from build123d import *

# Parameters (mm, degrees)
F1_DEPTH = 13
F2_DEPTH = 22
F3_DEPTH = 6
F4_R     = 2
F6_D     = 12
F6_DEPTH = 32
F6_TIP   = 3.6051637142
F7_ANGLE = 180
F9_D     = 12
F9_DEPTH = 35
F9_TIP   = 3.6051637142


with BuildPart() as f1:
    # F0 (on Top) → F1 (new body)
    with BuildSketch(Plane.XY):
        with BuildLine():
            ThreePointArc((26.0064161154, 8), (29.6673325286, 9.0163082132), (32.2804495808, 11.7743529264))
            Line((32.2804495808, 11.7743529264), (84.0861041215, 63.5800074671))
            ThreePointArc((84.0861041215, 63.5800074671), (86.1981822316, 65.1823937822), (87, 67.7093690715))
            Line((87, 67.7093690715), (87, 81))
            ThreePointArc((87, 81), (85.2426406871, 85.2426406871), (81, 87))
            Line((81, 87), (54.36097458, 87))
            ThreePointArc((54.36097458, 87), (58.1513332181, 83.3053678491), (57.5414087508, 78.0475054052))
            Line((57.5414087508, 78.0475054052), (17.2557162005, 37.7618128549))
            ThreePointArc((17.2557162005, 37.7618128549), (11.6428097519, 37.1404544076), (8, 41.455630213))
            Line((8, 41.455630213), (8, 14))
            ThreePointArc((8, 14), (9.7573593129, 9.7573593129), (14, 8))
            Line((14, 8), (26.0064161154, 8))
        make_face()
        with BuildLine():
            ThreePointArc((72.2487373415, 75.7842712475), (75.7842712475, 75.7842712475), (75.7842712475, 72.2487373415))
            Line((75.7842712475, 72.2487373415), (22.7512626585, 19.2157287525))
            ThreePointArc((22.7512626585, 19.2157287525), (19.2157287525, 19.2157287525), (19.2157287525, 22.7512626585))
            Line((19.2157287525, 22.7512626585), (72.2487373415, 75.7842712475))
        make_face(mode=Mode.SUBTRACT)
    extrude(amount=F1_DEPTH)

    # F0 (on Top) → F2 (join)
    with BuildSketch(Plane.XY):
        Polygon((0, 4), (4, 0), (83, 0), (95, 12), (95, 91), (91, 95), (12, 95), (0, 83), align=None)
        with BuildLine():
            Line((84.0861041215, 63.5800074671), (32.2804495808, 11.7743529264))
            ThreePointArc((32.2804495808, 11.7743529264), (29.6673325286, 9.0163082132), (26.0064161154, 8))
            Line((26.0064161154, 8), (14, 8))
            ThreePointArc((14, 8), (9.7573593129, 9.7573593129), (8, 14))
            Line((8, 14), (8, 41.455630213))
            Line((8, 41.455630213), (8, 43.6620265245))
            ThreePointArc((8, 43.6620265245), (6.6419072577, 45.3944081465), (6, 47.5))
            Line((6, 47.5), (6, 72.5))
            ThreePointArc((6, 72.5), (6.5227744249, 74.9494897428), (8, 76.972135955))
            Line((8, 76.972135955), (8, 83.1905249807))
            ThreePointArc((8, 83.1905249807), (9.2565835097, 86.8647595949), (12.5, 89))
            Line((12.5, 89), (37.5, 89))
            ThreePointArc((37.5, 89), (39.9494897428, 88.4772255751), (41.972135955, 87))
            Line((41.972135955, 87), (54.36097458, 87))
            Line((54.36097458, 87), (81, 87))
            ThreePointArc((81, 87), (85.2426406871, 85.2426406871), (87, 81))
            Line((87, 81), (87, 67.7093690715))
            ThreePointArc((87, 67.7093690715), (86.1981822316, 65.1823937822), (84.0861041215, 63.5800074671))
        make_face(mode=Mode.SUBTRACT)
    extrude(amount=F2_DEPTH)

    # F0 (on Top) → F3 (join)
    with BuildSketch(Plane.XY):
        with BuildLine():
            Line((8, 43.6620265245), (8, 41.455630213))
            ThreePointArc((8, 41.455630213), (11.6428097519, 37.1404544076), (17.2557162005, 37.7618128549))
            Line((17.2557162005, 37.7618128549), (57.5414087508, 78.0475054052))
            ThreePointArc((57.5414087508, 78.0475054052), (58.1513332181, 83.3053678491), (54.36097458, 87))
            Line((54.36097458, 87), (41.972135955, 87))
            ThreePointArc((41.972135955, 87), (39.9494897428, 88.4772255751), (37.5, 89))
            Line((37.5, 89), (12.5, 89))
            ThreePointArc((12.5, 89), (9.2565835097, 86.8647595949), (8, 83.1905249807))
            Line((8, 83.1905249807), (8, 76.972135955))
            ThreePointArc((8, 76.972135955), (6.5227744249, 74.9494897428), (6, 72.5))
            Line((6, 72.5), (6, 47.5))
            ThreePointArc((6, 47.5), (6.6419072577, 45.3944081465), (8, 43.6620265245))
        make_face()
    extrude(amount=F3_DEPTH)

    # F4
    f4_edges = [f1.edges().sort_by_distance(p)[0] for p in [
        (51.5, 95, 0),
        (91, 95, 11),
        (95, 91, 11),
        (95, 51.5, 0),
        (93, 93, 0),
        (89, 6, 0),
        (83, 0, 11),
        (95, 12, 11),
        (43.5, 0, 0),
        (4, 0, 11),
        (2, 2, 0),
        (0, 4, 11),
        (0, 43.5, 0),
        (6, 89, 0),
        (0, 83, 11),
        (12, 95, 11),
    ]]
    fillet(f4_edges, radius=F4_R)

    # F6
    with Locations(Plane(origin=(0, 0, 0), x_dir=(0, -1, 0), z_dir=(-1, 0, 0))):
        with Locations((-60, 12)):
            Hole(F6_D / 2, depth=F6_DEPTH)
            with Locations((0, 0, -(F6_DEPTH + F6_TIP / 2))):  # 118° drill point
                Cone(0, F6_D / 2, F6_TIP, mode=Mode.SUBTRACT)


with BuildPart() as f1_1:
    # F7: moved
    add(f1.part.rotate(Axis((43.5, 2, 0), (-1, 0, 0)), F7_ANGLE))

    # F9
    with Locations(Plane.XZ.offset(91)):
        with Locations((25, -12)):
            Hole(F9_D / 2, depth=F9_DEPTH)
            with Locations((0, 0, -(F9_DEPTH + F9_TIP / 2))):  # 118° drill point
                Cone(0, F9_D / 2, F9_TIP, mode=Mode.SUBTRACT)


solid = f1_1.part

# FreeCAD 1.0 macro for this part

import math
import FreeCAD as App
import Part
import Sketcher
Q = App.Units.Quantity


def edges_at(feature, points):
    """Names of the edges that pass closest to the given points."""
    edges = feature.Shape.Edges
    near = lambda p: min(range(len(edges)), key=lambda i: edges[i].distToShape(Part.Vertex(*p))[0])
    return sorted({f"Edge{near(p) + 1}" for p in points})


def add_polygon(sketch, points):
    """Adds a closed chain of lines whose ends are joined by coincident constraints."""
    first, n = sketch.GeometryCount, len(points)
    for a, b in zip(points, points[1:] + points[:1]):
        sketch.addGeometry(Part.LineSegment(App.Vector(*a, 0), App.Vector(*b, 0)), False)
    for i in range(n):
        sketch.addConstraint(Sketcher.Constraint("Coincident", first + i, 2, first + (i + 1) % n, 1))

doc = App.newDocument("Part")
body = doc.addObject("PartDesign::Body", "Body")

# Sketch on XY plane
sketch1 = doc.addObject("Sketcher::SketchObject", "Sketch")
body.addObject(sketch1)
sketch1.AttachmentSupport = (doc.XY_Plane, [""])
sketch1.MapMode = "FlatFace"
sketch1.addGeometry([
    Part.ArcOfCircle(Part.Circle(App.Vector(26.006416, 15.101778, 0), App.Vector(0, 0, 1), 7.101778), math.radians(-90), math.radians(-27.939185)),  # 0
    Part.LineSegment(App.Vector(32.28045, 11.774353, 0), App.Vector(84.086104, 63.580007, 0)),  # 1
    Part.ArcOfCircle(Part.Circle(App.Vector(82.617136, 67.709369, 0), App.Vector(0, 0, 1), 4.382864), math.radians(-70.417633), math.radians(0)),  # 2
    Part.LineSegment(App.Vector(87, 67.709369, 0), App.Vector(87, 81, 0)),  # 3
    Part.ArcOfCircle(Part.Circle(App.Vector(81, 81, 0), App.Vector(0, 0, 1), 6), math.radians(0), math.radians(90)),  # 4
    Part.LineSegment(App.Vector(81, 87, 0), App.Vector(54.360975, 87, 0)),  # 5
    Part.ArcOfCircle(Part.Circle(App.Vector(52.49774, 81.296891, 0), App.Vector(0, 0, 1), 5.999759), math.radians(-32.791669), math.radians(71.90752)),  # 6
    Part.LineSegment(App.Vector(57.541409, 78.047505, 0), App.Vector(17.255716, 37.761813, 0)),  # 7
    Part.ArcOfCircle(Part.Circle(App.Vector(13.866757, 42.713071, 0), App.Vector(0, 0, 1), 6), math.radians(-167.902642), math.radians(-55.609758)),  # 8
    Part.LineSegment(App.Vector(8, 41.45563, 0), App.Vector(8, 14, 0)),  # 9
    Part.ArcOfCircle(Part.Circle(App.Vector(14, 14, 0), App.Vector(0, 0, 1), 6), math.radians(180), math.radians(270)),  # 10
    Part.LineSegment(App.Vector(14, 8, 0), App.Vector(26.006416, 8, 0)),  # 11
    Part.LineSegment(App.Vector(19.215729, 22.751263, 0), App.Vector(72.248737, 75.784271, 0)),  # 12
    Part.ArcOfCircle(Part.Circle(App.Vector(74.016504, 74.016504, 0), App.Vector(0, 0, 1), 2.5), math.radians(-45), math.radians(135)),  # 13
    Part.LineSegment(App.Vector(75.784271, 72.248737, 0), App.Vector(22.751263, 19.215729, 0)),  # 14
    Part.ArcOfCircle(Part.Circle(App.Vector(20.983496, 20.983496, 0), App.Vector(0, 0, 1), 2.5), math.radians(135), math.radians(315)),  # 15
], False)
sketch1.addConstraint([
    Sketcher.Constraint("Coincident", 0, 2, 1, 1),
    Sketcher.Constraint("Coincident", 1, 2, 2, 1),
    Sketcher.Constraint("Tangent", 2, 2, 3, 1),
    Sketcher.Constraint("Tangent", 3, 2, 4, 1),
    Sketcher.Constraint("Tangent", 4, 2, 5, 1),
    Sketcher.Constraint("Coincident", 5, 2, 6, 2),
    Sketcher.Constraint("Coincident", 6, 1, 7, 1),
    Sketcher.Constraint("Coincident", 7, 2, 8, 2),
    Sketcher.Constraint("Coincident", 8, 1, 9, 1),
    Sketcher.Constraint("Tangent", 9, 2, 10, 1),
    Sketcher.Constraint("Tangent", 10, 2, 11, 1),
    Sketcher.Constraint("Tangent", 11, 2, 0, 1),
    Sketcher.Constraint("Tangent", 12, 2, 13, 2),
    Sketcher.Constraint("Tangent", 13, 1, 14, 1),
    Sketcher.Constraint("Tangent", 14, 2, 15, 2),
    Sketcher.Constraint("Tangent", 15, 1, 12, 1),
    Sketcher.Constraint("Vertical", 3),
    Sketcher.Constraint("Horizontal", 5),
    Sketcher.Constraint("Vertical", 9),
    Sketcher.Constraint("Horizontal", 11),
    Sketcher.Constraint("Equal", 4, 8),
    Sketcher.Constraint("Equal", 8, 10),
    Sketcher.Constraint("Equal", 13, 15),
    Sketcher.Constraint("Parallel", 1, 7),
    Sketcher.Constraint("Parallel", 7, 12),
    Sketcher.Constraint("Radius", 4, 6.0),
    Sketcher.Constraint("Radius", 13, 2.5),
    Sketcher.Constraint("Angle", 1, Q("45 deg")),
    Sketcher.Constraint("Distance", 12, 75.0),
    Sketcher.Constraint("DistanceX", -1, 1, 4, 3, 81.0),
    Sketcher.Constraint("DistanceY", -1, 1, 4, 3, 81.0),
    Sketcher.Constraint("DistanceX", -1, 1, 10, 3, 14.0),
    Sketcher.Constraint("DistanceY", -1, 1, 10, 3, 14.0),
    Sketcher.Constraint("Radius", 0, 7.101778),
    Sketcher.Constraint("Radius", 6, 5.999759),
    Sketcher.Constraint("Radius", 2, 4.382864),
    Sketcher.Constraint("DistanceY", 13, 3, 6, 1, 4.031001),
    Sketcher.Constraint("DistanceY", 3, 1, 3, 2, 13.290631),
    Sketcher.Constraint("DistanceY", 9, 2, 9, 1, 27.45563),
    Sketcher.Constraint("DistanceX", 13, 3, 1, 2, 10.0696),
    Sketcher.Constraint("DistanceX", 7, 2, 0, 3, 8.7507),
    Sketcher.Constraint("DistanceX", 12, 2, 2, 3, 10.368399),
    Sketcher.Constraint("Distance", 1, 73.264259),
    Sketcher.Constraint("DistanceX", 5, 2, 5, 1, 26.639025),
    Sketcher.Constraint("DistanceX", -1, 1, 6, 3, 52.49774),
    Sketcher.Constraint("DistanceY", -1, 1, 8, 3, 42.713071),
])
pad1 = doc.addObject("PartDesign::Pad", "Pad")
body.addObject(pad1)
pad1.Profile = sketch1
pad1.Length = 13

# Sketch on XY plane
sketch2 = doc.addObject("Sketcher::SketchObject", "Sketch001")
body.addObject(sketch2)
sketch2.AttachmentSupport = (doc.XY_Plane, [""])
sketch2.MapMode = "FlatFace"
add_polygon(sketch2, [(0, 4), (4, 0), (83, 0), (95, 12), (95, 91), (91, 95), (12, 95), (0, 83)])  # lines 0-7
sketch2.addGeometry(Part.ArcOfCircle(Part.Circle(App.Vector(82.617136, 67.709369, 0), App.Vector(0, 0, 1), 4.382864), math.radians(-70.417633), math.radians(0)), False)  # 8
sketch2.addGeometry(Part.LineSegment(App.Vector(84.086104, 63.580007, 0), App.Vector(32.28045, 11.774353, 0)), False)  # 9
sketch2.addGeometry(Part.ArcOfCircle(Part.Circle(App.Vector(26.006416, 15.101778, 0), App.Vector(0, 0, 1), 7.101778), math.radians(-90), math.radians(-27.939185)), False)  # 10
sketch2.addGeometry(Part.LineSegment(App.Vector(26.006416, 8, 0), App.Vector(14, 8, 0)), False)  # 11
sketch2.addGeometry(Part.ArcOfCircle(Part.Circle(App.Vector(14, 14, 0), App.Vector(0, 0, 1), 6), math.radians(180), math.radians(270)), False)  # 12
sketch2.addGeometry(Part.LineSegment(App.Vector(8, 14, 0), App.Vector(8, 43.662027, 0)), False)  # 13
sketch2.addGeometry(Part.ArcOfCircle(Part.Circle(App.Vector(11.962792, 48.167166, 0), App.Vector(0, 0, 1), 6), math.radians(-173.615835), math.radians(-131.335373)), False)  # 14
sketch2.addGeometry(Part.LineSegment(App.Vector(6, 47.5, 0), App.Vector(6, 72.5, 0)), False)  # 15
sketch2.addGeometry(Part.ArcOfCircle(Part.Circle(App.Vector(12, 72.5, 0), App.Vector(0, 0, 1), 6), math.radians(131.810315), math.radians(180)), False)  # 16
sketch2.addGeometry(Part.LineSegment(App.Vector(8, 76.972136, 0), App.Vector(8, 83.190525, 0)), False)  # 17
sketch2.addGeometry(Part.ArcOfCircle(Part.Circle(App.Vector(14, 83.190525, 0), App.Vector(0, 0, 1), 6), math.radians(104.477512), math.radians(180)), False)  # 18
sketch2.addGeometry(Part.LineSegment(App.Vector(12.5, 89, 0), App.Vector(37.5, 89, 0)), False)  # 19
sketch2.addGeometry(Part.ArcOfCircle(Part.Circle(App.Vector(37.5, 83, 0), App.Vector(0, 0, 1), 6), math.radians(41.810315), math.radians(90)), False)  # 20
sketch2.addGeometry(Part.LineSegment(App.Vector(41.972136, 87, 0), App.Vector(81, 87, 0)), False)  # 21
sketch2.addGeometry(Part.ArcOfCircle(Part.Circle(App.Vector(81, 81, 0), App.Vector(0, 0, 1), 6), math.radians(0), math.radians(90)), False)  # 22
sketch2.addGeometry(Part.LineSegment(App.Vector(87, 81, 0), App.Vector(87, 67.709369, 0)), False)  # 23
sketch2.addConstraint([
    Sketcher.Constraint("Coincident", 8, 1, 9, 1),
    Sketcher.Constraint("Coincident", 9, 2, 10, 2),
    Sketcher.Constraint("Tangent", 10, 1, 11, 1),
    Sketcher.Constraint("Tangent", 11, 2, 12, 2),
    Sketcher.Constraint("Tangent", 12, 1, 13, 1),
    Sketcher.Constraint("Coincident", 13, 2, 14, 2),
    Sketcher.Constraint("Coincident", 14, 1, 15, 1),
    Sketcher.Constraint("Tangent", 15, 2, 16, 2),
    Sketcher.Constraint("Coincident", 16, 1, 17, 1),
    Sketcher.Constraint("Tangent", 17, 2, 18, 2),
    Sketcher.Constraint("Coincident", 18, 1, 19, 1),
    Sketcher.Constraint("Tangent", 19, 2, 20, 2),
    Sketcher.Constraint("Coincident", 20, 1, 21, 1),
    Sketcher.Constraint("Tangent", 21, 2, 22, 2),
    Sketcher.Constraint("Tangent", 22, 1, 23, 1),
    Sketcher.Constraint("Tangent", 23, 2, 8, 2),
    Sketcher.Constraint("Horizontal", 1),
    Sketcher.Constraint("Vertical", 3),
    Sketcher.Constraint("Horizontal", 5),
    Sketcher.Constraint("Vertical", 7),
    Sketcher.Constraint("Horizontal", 11),
    Sketcher.Constraint("Vertical", 13),
    Sketcher.Constraint("Vertical", 15),
    Sketcher.Constraint("Vertical", 17),
    Sketcher.Constraint("Horizontal", 19),
    Sketcher.Constraint("Horizontal", 21),
    Sketcher.Constraint("Vertical", 23),
    Sketcher.Constraint("Equal", 12, 14),
    Sketcher.Constraint("Equal", 14, 16),
    Sketcher.Constraint("Equal", 16, 18),
    Sketcher.Constraint("Equal", 18, 20),
    Sketcher.Constraint("Equal", 20, 22),
    Sketcher.Constraint("PointOnObject", 0, 2, -1),
    Sketcher.Constraint("PointOnObject", 6, 2, -2),
    Sketcher.Constraint("Perpendicular", 0, 2),
    Sketcher.Constraint("Perpendicular", 2, 4),
    Sketcher.Constraint("Perpendicular", 4, 6),
    Sketcher.Constraint("Parallel", 6, 9),
    Sketcher.Constraint("Horizontal", 20, 3, 6, 2),
    Sketcher.Constraint("Vertical", 12, 3, 18, 3),
    Sketcher.Constraint("Vertical", 16, 3, 5, 2),
    Sketcher.Constraint("Equal", 1, 5),
    Sketcher.Constraint("Equal", 5, 3),
    Sketcher.Constraint("Equal", 3, 7),
    Sketcher.Constraint("Equal", 19, 15),
    Sketcher.Constraint("Radius", 12, 6.0),
    Sketcher.Constraint("DistanceX", 1, 1, 1, 2, 79.0),
    Sketcher.Constraint("DistanceX", 19, 1, 19, 2, 25.0),
    Sketcher.Constraint("Angle", 0, Q("-45 deg")),
    Sketcher.Constraint("DistanceX", -1, 1, 12, 3, 14.0),
    Sketcher.Constraint("DistanceY", -1, 1, 12, 3, 14.0),
    Sketcher.Constraint("DistanceX", -1, 1, 16, 3, 12.0),
    Sketcher.Constraint("DistanceY", -1, 1, 20, 3, 83.0),
    Sketcher.Constraint("DistanceX", -1, 1, 22, 3, 81.0),
    Sketcher.Constraint("DistanceY", -1, 1, 22, 3, 81.0),
    Sketcher.Constraint("DistanceY", -1, 1, 16, 3, 72.5),
    Sketcher.Constraint("DistanceX", -1, 1, 20, 3, 37.5),
    Sketcher.Constraint("Radius", 10, 7.101778),
    Sketcher.Constraint("Radius", 8, 4.382864),
    Sketcher.Constraint("DistanceY", 23, 2, 23, 1, 13.290631),
    Sketcher.Constraint("Distance", 9, 73.264259),
    Sketcher.Constraint("DistanceX", 11, 2, 11, 1, 12.006416),
    Sketcher.Constraint("DistanceY", 13, 1, 13, 2, 29.662027),
])
pad2 = doc.addObject("PartDesign::Pad", "Pad001")
body.addObject(pad2)
pad2.Profile = sketch2
pad2.Length = 22

# Sketch on XY plane
sketch3 = doc.addObject("Sketcher::SketchObject", "Sketch002")
body.addObject(sketch3)
sketch3.AttachmentSupport = (doc.XY_Plane, [""])
sketch3.MapMode = "FlatFace"
sketch3.addGeometry([
    Part.LineSegment(App.Vector(8, 43.662027, 0), App.Vector(8, 41.45563, 0)),  # 0
    Part.ArcOfCircle(Part.Circle(App.Vector(13.866757, 42.713071, 0), App.Vector(0, 0, 1), 6), math.radians(-167.902642), math.radians(-55.609758)),  # 1
    Part.LineSegment(App.Vector(17.255716, 37.761813, 0), App.Vector(57.541409, 78.047505, 0)),  # 2
    Part.ArcOfCircle(Part.Circle(App.Vector(52.49774, 81.296891, 0), App.Vector(0, 0, 1), 5.999759), math.radians(-32.791669), math.radians(71.90752)),  # 3
    Part.LineSegment(App.Vector(54.360975, 87, 0), App.Vector(41.972136, 87, 0)),  # 4
    Part.ArcOfCircle(Part.Circle(App.Vector(37.5, 83, 0), App.Vector(0, 0, 1), 6), math.radians(41.810315), math.radians(90)),  # 5
    Part.LineSegment(App.Vector(37.5, 89, 0), App.Vector(12.5, 89, 0)),  # 6
    Part.ArcOfCircle(Part.Circle(App.Vector(14, 83.190525, 0), App.Vector(0, 0, 1), 6), math.radians(104.477512), math.radians(180)),  # 7
    Part.LineSegment(App.Vector(8, 83.190525, 0), App.Vector(8, 76.972136, 0)),  # 8
    Part.ArcOfCircle(Part.Circle(App.Vector(12, 72.5, 0), App.Vector(0, 0, 1), 6), math.radians(131.810315), math.radians(180)),  # 9
    Part.LineSegment(App.Vector(6, 72.5, 0), App.Vector(6, 47.5, 0)),  # 10
    Part.ArcOfCircle(Part.Circle(App.Vector(11.962792, 48.167166, 0), App.Vector(0, 0, 1), 6), math.radians(-173.615835), math.radians(-131.335373)),  # 11
], False)
sketch3.addConstraint([
    Sketcher.Constraint("Coincident", 0, 2, 1, 1),
    Sketcher.Constraint("Coincident", 1, 2, 2, 1),
    Sketcher.Constraint("Coincident", 2, 2, 3, 1),
    Sketcher.Constraint("Coincident", 3, 2, 4, 1),
    Sketcher.Constraint("Coincident", 4, 2, 5, 1),
    Sketcher.Constraint("Tangent", 5, 2, 6, 1),
    Sketcher.Constraint("Coincident", 6, 2, 7, 1),
    Sketcher.Constraint("Tangent", 7, 2, 8, 1),
    Sketcher.Constraint("Coincident", 8, 2, 9, 1),
    Sketcher.Constraint("Tangent", 9, 2, 10, 1),
    Sketcher.Constraint("Coincident", 10, 2, 11, 1),
    Sketcher.Constraint("Coincident", 11, 2, 0, 1),
    Sketcher.Constraint("Vertical", 0),
    Sketcher.Constraint("Horizontal", 4),
    Sketcher.Constraint("Horizontal", 6),
    Sketcher.Constraint("Vertical", 8),
    Sketcher.Constraint("Vertical", 10),
    Sketcher.Constraint("Equal", 1, 5),
    Sketcher.Constraint("Equal", 5, 7),
    Sketcher.Constraint("Equal", 7, 9),
    Sketcher.Constraint("Equal", 9, 11),
    Sketcher.Constraint("Vertical", 0, 2, 7, 2),
    Sketcher.Constraint("Equal", 6, 10),
    Sketcher.Constraint("Radius", 1, 6.0),
    Sketcher.Constraint("DistanceX", 6, 2, 6, 1, 25.0),
    Sketcher.Constraint("Angle", 2, Q("45 deg")),
    Sketcher.Constraint("DistanceY", -1, 1, 5, 3, 83.0),
    Sketcher.Constraint("DistanceX", -1, 1, 7, 3, 14.0),
    Sketcher.Constraint("DistanceX", -1, 1, 9, 3, 12.0),
    Sketcher.Constraint("DistanceY", -1, 1, 3, 2, 87.0),
    Sketcher.Constraint("DistanceX", -1, 1, 5, 3, 37.5),
    Sketcher.Constraint("DistanceY", -1, 1, 9, 3, 72.5),
    Sketcher.Constraint("Radius", 3, 5.999759),
    Sketcher.Constraint("DistanceX", 4, 2, 4, 1, 12.388839),
    Sketcher.Constraint("DistanceY", 0, 2, 0, 1, 2.206396),
    Sketcher.Constraint("DistanceY", -1, 1, 1, 3, 42.713071),
    Sketcher.Constraint("DistanceX", -1, 1, 3, 3, 52.49774),
    Sketcher.Constraint("DistanceY", -1, 1, 0, 2, 41.45563),
    Sketcher.Constraint("DistanceX", -1, 1, 2, 2, 57.541409),
])
pad3 = doc.addObject("PartDesign::Pad", "Pad002")
body.addObject(pad3)
pad3.Profile = sketch3
pad3.Length = 6
doc.recompute()

fillet = doc.addObject("PartDesign::Fillet", "Fillet")
body.addObject(fillet)
fillet.Base = (pad3, edges_at(pad3, [
    (51.5, 95, 0),
    (91, 95, 11),
    (95, 91, 11),
    (95, 51.5, 0),
    (93, 93, 0),
    (89, 6, 0),
    (83, 0, 11),
    (95, 12, 11),
    (43.5, 0, 0),
    (4, 0, 11),
    (2, 2, 0),
    (0, 4, 11),
    (0, 43.5, 0),
    (6, 89, 0),
    (0, 83, 11),
    (12, 95, 11),
]))
fillet.Radius = 2

# Sketch on YZ plane
sketch4 = doc.addObject("Sketcher::SketchObject", "Sketch003")
body.addObject(sketch4)
sketch4.AttachmentSupport = (doc.YZ_Plane, [""])
sketch4.MapMode = "FlatFace"
sketch4.addGeometry(Part.Circle(App.Vector(60, 12, 0), App.Vector(0, 0, 1), 6), False)
sketch4.addConstraint([
    Sketcher.Constraint("Diameter", 0, 12.0),
    Sketcher.Constraint("DistanceX", -1, 1, 0, 3, 60.0),
    Sketcher.Constraint("DistanceY", -1, 1, 0, 3, 12.0),
])
doc.recompute()
hole = doc.addObject("PartDesign::Hole", "Hole")
body.addObject(hole)
hole.Profile = sketch4
hole.ThreadType = "None"
hole.Diameter = 12
hole.DepthType = "Dimension"
hole.Depth = 32
hole.DrillPoint = "Angled"
hole.DrillPointAngle = 118
hole.Reversed = True
body2 = doc.addObject("PartDesign::Body", "Body001")
doc.recompute()

body.Placement = App.Placement(App.Vector(0, 4, 0), App.Rotation(App.Vector(-1, 0, 0), 180))
boolean = doc.addObject("PartDesign::Boolean", "Boolean")
body2.addObject(boolean)
boolean.Type = "Fuse"
boolean.addObjects([body])

# Sketch on XZ plane
sketch5 = doc.addObject("Sketcher::SketchObject", "Sketch004")
body2.addObject(sketch5)
sketch5.AttachmentSupport = (doc.getObject("XZ_Plane001"), [""])
sketch5.MapMode = "FlatFace"
sketch5.AttachmentOffset = App.Placement(App.Vector(0, 0, 91), App.Rotation())
sketch5.addGeometry(Part.Circle(App.Vector(25, -12, 0), App.Vector(0, 0, 1), 6), False)
sketch5.addConstraint([
    Sketcher.Constraint("Diameter", 0, 12.0),
    Sketcher.Constraint("DistanceX", -1, 1, 0, 3, 25.0),
    Sketcher.Constraint("DistanceY", 0, 3, -1, 1, 12.0),
])
doc.recompute()
hole2 = doc.addObject("PartDesign::Hole", "Hole001")
body2.addObject(hole2)
hole2.Profile = sketch5
hole2.ThreadType = "None"
hole2.Diameter = 12
hole2.DepthType = "Dimension"
hole2.Depth = 35
hole2.DrillPoint = "Angled"
hole2.DrillPointAngle = 118

doc.recompute()
